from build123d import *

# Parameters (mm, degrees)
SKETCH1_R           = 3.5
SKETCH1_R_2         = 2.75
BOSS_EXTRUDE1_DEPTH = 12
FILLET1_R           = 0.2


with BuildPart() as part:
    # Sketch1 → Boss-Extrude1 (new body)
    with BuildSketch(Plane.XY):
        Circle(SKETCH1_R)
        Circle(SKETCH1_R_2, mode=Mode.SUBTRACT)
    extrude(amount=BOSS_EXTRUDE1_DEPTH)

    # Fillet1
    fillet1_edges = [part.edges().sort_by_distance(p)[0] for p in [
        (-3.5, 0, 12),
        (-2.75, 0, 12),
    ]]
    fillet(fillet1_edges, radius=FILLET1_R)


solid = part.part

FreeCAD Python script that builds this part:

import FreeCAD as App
import Part
import Sketcher
from FreeCAD import Vector


def edges_at(feature, points):
    """Names of the edges that pass closest to the given points."""
    edges = feature.Shape.Edges
    near = lambda p: min(range(len(edges)), key=lambda i: edges[i].distToShape(Part.Vertex(*p))[0])
    return sorted({f"Edge{near(p) + 1}" for p in points})

doc = App.newDocument("Part")
body = doc.addObject("PartDesign::Body", "Body")

sketch1 = body.newObject("Sketcher::SketchObject", "Sketch")
sketch1.AttachmentSupport = (doc.getObject("XY_Plane"), [""])
sketch1.MapMode = "FlatFace"
sketch1.addGeometry([
    Part.Circle(Vector(0, 0, 0), Vector(0, 0, 1), 3.5),
    Part.Circle(Vector(0, 0, 0), Vector(0, 0, 1), 2.75),
], False)
sketch1.addConstraint([
    Sketcher.Constraint("Coincident", 0, 3, -1, 1),
    Sketcher.Constraint("Coincident", 1, 3, -1, 1),
    Sketcher.Constraint("Diameter", 0, 7.0),
    Sketcher.Constraint("Diameter", 1, 5.5),
])
pad1 = body.newObject("PartDesign::Pad", "Pad")
pad1.Profile = sketch1
pad1.Length = 12
doc.recompute()

fillet = body.newObject("PartDesign::Fillet", "Fillet")
fillet.Base = (pad1, edges_at(pad1, [(-3.5, 0, 12), (-2.75, 0, 12)]))
fillet.Radius = 0.2

doc.recompute()
